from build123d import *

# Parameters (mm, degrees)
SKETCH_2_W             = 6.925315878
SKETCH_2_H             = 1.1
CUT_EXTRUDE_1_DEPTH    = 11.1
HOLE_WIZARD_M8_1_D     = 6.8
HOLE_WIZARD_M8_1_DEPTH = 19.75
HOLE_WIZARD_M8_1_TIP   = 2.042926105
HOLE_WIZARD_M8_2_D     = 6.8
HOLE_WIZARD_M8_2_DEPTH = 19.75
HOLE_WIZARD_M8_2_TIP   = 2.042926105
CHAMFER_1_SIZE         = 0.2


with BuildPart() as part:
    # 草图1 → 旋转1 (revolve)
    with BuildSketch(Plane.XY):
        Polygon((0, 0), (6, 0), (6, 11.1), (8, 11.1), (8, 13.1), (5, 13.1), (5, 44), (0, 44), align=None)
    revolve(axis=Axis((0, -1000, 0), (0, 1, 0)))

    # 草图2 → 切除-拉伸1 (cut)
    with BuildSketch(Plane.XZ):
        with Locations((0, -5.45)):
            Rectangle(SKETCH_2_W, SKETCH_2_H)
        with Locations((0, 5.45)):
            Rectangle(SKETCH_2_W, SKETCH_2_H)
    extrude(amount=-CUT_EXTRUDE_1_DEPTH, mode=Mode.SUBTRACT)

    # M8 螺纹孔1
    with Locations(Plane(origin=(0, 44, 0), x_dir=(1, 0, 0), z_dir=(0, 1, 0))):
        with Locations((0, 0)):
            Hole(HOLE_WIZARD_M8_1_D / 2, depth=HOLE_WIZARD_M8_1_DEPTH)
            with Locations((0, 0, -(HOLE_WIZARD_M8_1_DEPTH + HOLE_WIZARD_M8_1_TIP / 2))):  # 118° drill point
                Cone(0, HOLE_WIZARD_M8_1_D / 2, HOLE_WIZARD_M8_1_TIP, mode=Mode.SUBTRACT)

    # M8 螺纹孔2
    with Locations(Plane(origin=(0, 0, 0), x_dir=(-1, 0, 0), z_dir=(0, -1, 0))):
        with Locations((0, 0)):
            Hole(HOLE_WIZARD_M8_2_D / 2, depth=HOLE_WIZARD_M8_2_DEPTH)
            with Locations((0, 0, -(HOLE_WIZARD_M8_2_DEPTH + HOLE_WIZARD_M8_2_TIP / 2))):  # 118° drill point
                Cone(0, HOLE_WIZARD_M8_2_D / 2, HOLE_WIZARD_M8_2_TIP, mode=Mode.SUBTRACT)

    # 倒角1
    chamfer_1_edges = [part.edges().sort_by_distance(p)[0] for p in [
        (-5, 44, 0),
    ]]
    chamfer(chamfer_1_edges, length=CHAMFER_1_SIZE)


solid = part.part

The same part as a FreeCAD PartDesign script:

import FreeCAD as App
import Part
import Sketcher
Q = App.Units.Quantity


def edges_at(feature, points):
    """Names of the edges that pass closest to the given points."""
    edges = feature.Shape.Edges
    near = lambda p: min(range(len(edges)), key=lambda i: edges[i].distToShape(Part.Vertex(*p))[0])
    return sorted({f"Edge{near(p) + 1}" for p in points})


def add_polygon(sketch, points):
    """Adds a closed chain of lines whose ends are joined by coincident constraints."""
    first, n = sketch.GeometryCount, len(points)
    for a, b in zip(points, points[1:] + points[:1]):
        sketch.addGeometry(Part.LineSegment(App.Vector(*a, 0), App.Vector(*b, 0)), False)
    for i in range(n):
        sketch.addConstraint(Sketcher.Constraint("Coincident", first + i, 2, first + (i + 1) % n, 1))

doc = App.newDocument("Part")
body = doc.addObject("PartDesign::Body", "Body")

# Sketch on XY plane
sketch1 = doc.addObject("Sketcher::SketchObject", "Sketch")
body.addObject(sketch1)
sketch1.AttachmentSupport = (doc.XY_Plane, [""])
sketch1.MapMode = "FlatFace"
add_polygon(sketch1, [(0, 0), (6, 0), (6, 11.1), (8, 11.1), (8, 13.1), (5, 13.1), (5, 44), (0, 44)])  # lines 0-7
sketch1.addConstraint([
    Sketcher.Constraint("Horizontal", 0),
    Sketcher.Constraint("Vertical", 1),
    Sketcher.Constraint("Horizontal", 2),
    Sketcher.Constraint("Vertical", 3),
    Sketcher.Constraint("Horizontal", 4),
    Sketcher.Constraint("Vertical", 5),
    Sketcher.Constraint("Horizontal", 6),
    Sketcher.Constraint("Vertical", 7),
    Sketcher.Constraint("Coincident", 7, 2, -1, 1),
    Sketcher.Constraint("Equal", 2, 3),
    Sketcher.Constraint("DistanceX", 0, 1, 0, 2, Q("6 mm")),
    Sketcher.Constraint("DistanceX", 2, 1, 2, 2, Q("2 mm")),
    Sketcher.Constraint("DistanceX", 4, 2, 4, 1, Q("3 mm")),
    Sketcher.Constraint("DistanceY", 7, 2, 7, 1, Q("44 mm")),
    Sketcher.Constraint("DistanceY", 1, 1, 1, 2, Q("11.1 mm")),
])
revolution = doc.addObject("PartDesign::Revolution", "Revolution")
body.addObject(revolution)
revolution.Profile = sketch1
revolution.ReferenceAxis = (sketch1, ["V_Axis"])
revolution.Angle = 360

# Sketch on XZ plane
sketch2 = doc.addObject("Sketcher::SketchObject", "Sketch001")
body.addObject(sketch2)
sketch2.AttachmentSupport = (doc.XZ_Plane, [""])
sketch2.MapMode = "FlatFace"
add_polygon(sketch2, [(-3.5, -4.9), (-3.5, -6), (3.5, -6), (3.5, -4.9)])  # lines 0-3
add_polygon(sketch2, [(-3.5, 6), (-3.5, 4.9), (3.5, 4.9), (3.5, 6)])  # lines 4-7
sketch2.addConstraint([
    Sketcher.Constraint("Vertical", 0),
    Sketcher.Constraint("Horizontal", 1),
    Sketcher.Constraint("Vertical", 2),
    Sketcher.Constraint("Horizontal", 3),
    Sketcher.Constraint("Vertical", 4),
    Sketcher.Constraint("Horizontal", 5),
    Sketcher.Constraint("Vertical", 6),
    Sketcher.Constraint("Horizontal", 7),
    Sketcher.Constraint("Symmetric", 2, 2, 4, 2, -1, 1),
    Sketcher.Constraint("Symmetric", 0, 2, 6, 2, -1, 1),
    Sketcher.Constraint("Vertical", 3, 2, 4, 2),
    Sketcher.Constraint("DistanceY", 0, 2, 0, 1, Q("1.1 mm")),
    Sketcher.Constraint("DistanceY", 0, 2, -1, 1, Q("6 mm")),
    Sketcher.Constraint("DistanceX", 1, 1, 1, 2, Q("6.925316 mm")),
])
pocket1 = doc.addObject("PartDesign::Pocket", "Pocket")
body.addObject(pocket1)
pocket1.Profile = sketch2
pocket1.Length = 11.1

# Sketch on XZ plane
sketch3 = doc.addObject("Sketcher::SketchObject", "Sketch002")
body.addObject(sketch3)
sketch3.AttachmentSupport = (doc.XZ_Plane, [""])
sketch3.MapMode = "FlatFace"
sketch3.AttachmentOffset = App.Placement(App.Vector(0, 0, -44), App.Rotation())
sketch3.addGeometry(Part.Circle(App.Vector(0, 0, 0), App.Vector(0, 0, 1), 3.4), False)
sketch3.addConstraint([
    Sketcher.Constraint("Coincident", 0, 3, -1, 1),
    Sketcher.Constraint("Diameter", 0, Q("6.8 mm")),
])
doc.recompute()
hole = doc.addObject("PartDesign::Hole", "Hole")
body.addObject(hole)
hole.Profile = sketch3
hole.ThreadType = "None"
hole.Diameter = 6.8
hole.DepthType = "Dimension"
hole.Depth = 19.75
hole.DrillPoint = "Angled"
hole.DrillPointAngle = 118
hole.Reversed = True

# Sketch on XZ plane
sketch4 = doc.addObject("Sketcher::SketchObject", "Sketch003")
body.addObject(sketch4)
sketch4.AttachmentSupport = (doc.XZ_Plane, [""])
sketch4.MapMode = "FlatFace"
sketch4.addGeometry(Part.Circle(App.Vector(0, 0, 0), App.Vector(0, 0, 1), 3.4), False)
sketch4.addConstraint([
    Sketcher.Constraint("Coincident", 0, 3, -1, 1),
    Sketcher.Constraint("Diameter", 0, Q("6.8 mm")),
])
doc.recompute()
hole2 = doc.addObject("PartDesign::Hole", "Hole001")
body.addObject(hole2)
hole2.Profile = sketch4
hole2.ThreadType = "None"
hole2.Diameter = 6.8
hole2.DepthType = "Dimension"
hole2.Depth = 19.75
hole2.DrillPoint = "Angled"
hole2.DrillPointAngle = 118
doc.recompute()

chamfer = doc.addObject("PartDesign::Chamfer", "Chamfer")
body.addObject(chamfer)
chamfer.Base = (hole2, edges_at(hole2, [(-5, 44, 0)]))
chamfer.Size = 0.2

doc.recompute()
